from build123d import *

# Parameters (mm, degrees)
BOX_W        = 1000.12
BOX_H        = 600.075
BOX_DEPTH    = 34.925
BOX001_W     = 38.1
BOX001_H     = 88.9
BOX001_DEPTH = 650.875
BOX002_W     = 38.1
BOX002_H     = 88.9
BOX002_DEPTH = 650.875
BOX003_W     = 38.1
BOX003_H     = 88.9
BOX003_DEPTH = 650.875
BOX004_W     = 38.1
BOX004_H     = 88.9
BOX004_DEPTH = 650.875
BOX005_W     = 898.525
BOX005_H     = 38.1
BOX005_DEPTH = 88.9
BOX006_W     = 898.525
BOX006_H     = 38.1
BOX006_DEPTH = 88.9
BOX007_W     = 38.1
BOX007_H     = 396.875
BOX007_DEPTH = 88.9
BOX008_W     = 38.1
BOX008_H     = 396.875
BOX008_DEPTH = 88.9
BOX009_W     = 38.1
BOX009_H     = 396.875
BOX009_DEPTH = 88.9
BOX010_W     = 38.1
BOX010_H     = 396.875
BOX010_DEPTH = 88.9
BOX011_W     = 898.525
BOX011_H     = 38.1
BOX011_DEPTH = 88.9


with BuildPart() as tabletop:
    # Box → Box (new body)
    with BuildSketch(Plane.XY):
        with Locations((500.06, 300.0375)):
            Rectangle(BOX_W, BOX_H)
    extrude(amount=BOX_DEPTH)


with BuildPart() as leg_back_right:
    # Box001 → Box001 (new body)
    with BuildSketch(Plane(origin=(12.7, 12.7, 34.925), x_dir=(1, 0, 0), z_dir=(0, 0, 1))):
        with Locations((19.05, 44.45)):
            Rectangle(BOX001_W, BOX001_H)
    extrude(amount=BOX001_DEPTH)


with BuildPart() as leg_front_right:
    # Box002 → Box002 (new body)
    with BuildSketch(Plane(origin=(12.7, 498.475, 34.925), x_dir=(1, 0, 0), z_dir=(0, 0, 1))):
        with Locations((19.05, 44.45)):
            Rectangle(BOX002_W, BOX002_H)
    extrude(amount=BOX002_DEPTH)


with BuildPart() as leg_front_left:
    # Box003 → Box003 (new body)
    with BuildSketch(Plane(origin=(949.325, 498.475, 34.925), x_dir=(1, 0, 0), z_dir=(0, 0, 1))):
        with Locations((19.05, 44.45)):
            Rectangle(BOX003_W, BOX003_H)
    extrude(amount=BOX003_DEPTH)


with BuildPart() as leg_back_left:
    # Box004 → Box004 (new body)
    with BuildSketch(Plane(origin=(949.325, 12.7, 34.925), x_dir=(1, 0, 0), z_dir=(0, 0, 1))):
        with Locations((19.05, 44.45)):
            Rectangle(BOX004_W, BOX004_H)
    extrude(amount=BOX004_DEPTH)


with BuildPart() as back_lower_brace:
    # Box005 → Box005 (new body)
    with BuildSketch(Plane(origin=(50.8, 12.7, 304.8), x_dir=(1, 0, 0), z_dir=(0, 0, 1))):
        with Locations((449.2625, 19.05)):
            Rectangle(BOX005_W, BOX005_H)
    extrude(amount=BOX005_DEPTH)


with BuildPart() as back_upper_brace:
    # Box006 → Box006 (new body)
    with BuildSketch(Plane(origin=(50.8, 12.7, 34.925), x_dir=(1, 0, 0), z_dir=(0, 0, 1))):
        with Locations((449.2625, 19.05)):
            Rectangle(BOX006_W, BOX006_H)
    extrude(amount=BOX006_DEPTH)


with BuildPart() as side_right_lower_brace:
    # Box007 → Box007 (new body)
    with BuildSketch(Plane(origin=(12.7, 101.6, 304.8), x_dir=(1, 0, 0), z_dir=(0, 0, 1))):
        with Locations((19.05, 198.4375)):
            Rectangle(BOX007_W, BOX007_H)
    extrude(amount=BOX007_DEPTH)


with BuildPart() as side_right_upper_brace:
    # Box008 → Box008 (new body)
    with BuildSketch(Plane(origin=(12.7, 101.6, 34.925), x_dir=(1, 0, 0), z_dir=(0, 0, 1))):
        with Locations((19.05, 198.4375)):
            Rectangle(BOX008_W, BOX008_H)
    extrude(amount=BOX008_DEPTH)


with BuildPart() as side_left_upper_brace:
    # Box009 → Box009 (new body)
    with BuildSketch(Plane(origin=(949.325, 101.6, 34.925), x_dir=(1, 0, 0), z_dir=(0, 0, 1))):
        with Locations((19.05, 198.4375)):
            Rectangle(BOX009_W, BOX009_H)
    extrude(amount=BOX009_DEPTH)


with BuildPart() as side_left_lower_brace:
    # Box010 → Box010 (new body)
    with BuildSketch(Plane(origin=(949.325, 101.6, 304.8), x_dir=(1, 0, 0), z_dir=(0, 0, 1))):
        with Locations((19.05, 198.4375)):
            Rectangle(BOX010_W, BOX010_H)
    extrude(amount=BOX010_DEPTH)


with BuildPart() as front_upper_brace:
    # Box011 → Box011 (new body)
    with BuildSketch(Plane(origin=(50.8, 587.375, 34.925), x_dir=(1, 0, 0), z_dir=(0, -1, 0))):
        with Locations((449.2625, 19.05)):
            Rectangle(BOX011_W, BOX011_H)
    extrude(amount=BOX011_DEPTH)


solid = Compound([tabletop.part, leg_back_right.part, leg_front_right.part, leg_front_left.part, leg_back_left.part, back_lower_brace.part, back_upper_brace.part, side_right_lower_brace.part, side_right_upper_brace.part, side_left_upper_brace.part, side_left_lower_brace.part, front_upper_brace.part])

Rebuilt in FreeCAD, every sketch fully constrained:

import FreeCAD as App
import Part
import Sketcher
from FreeCAD import Vector
Q = App.Units.Quantity


def add_polygon(sketch, points):
    """Adds a closed chain of lines whose ends are joined by coincident constraints."""
    first, n = sketch.GeometryCount, len(points)
    for a, b in zip(points, points[1:] + points[:1]):
        sketch.addGeometry(Part.LineSegment(App.Vector(*a, 0), App.Vector(*b, 0)), False)
    for i in range(n):
        sketch.addConstraint(Sketcher.Constraint("Coincident", first + i, 2, first + (i + 1) % n, 1))

doc = App.newDocument("Part")
params = doc.addObject("Spreadsheet::Sheet", "Params")
for row, (alias, value) in enumerate([
    ("sketch1_height", "23.625 in"),
    ("pad1_length", "1.375 in"),
    ("sketch2_width", "1.5 in"),
    ("sketch2_height", "3.5 in"),
    ("pad2_length", "25.625 in"),
    ("sketch3_width", "1.5 in"),
    ("sketch3_height", "3.5 in"),
    ("pad3_length", "25.625 in"),
    ("sketch4_width", "1.5 in"),
    ("sketch4_height", "3.5 in"),
    ("pad4_length", "25.625 in"),
    ("sketch5_width", "1.5 in"),
    ("sketch5_height", "3.5 in"),
    ("pad5_length", "25.625 in"),
    ("sketch6_height", "1.5 in"),
    ("sketch6_width", "35.375 in"),
    ("pad6_length", "3.5 in"),
    ("sketch7_height", "1.5 in"),
    ("sketch7_width", "35.375 in"),
    ("pad7_length", "3.5 in"),
    ("sketch8_width", "1.5 in"),
    ("sketch8_height", "15.625 in"),
    ("pad8_length", "3.5 in"),
    ("sketch9_width", "1.5 in"),
    ("sketch9_height", "15.625 in"),
    ("pad9_length", "3.5 in"),
    ("sketch10_width", "1.5 in"),
    ("sketch10_height", "15.625 in"),
    ("pad10_length", "3.5 in"),
    ("sketch11_width", "1.5 in"),
    ("sketch11_height", "15.625 in"),
    ("pad11_length", "3.5 in"),
    ("sketch12_height", "1.5 in"),
    ("sketch12_width", "35.375 in"),
    ("pad12_length", "3.5 in"),
], start=1):
    params.set(f"A{row}", alias)
    params.set(f"B{row}", "=" + value)
    params.setAlias(f"B{row}", alias)

body = doc.addObject("PartDesign::Body", "Body")

# Sketch on XY plane
sketch1 = body.newObject("Sketcher::SketchObject", "Sketch")
sketch1.AttachmentSupport = (doc.getObject("XY_Plane"), [""])
sketch1.MapMode = "FlatFace"
add_polygon(sketch1, [(0, 600), (0, 0), (1000, 0), (1000, 600)])  # lines 0-3
sketch1.addConstraint(Sketcher.Constraint("Vertical", 0))
sketch1.addConstraint(Sketcher.Constraint("Horizontal", 1))
sketch1.addConstraint(Sketcher.Constraint("Vertical", 2))
sketch1.addConstraint(Sketcher.Constraint("Horizontal", 3))
sketch1.addConstraint(Sketcher.Constraint("Coincident", 0, 2, -1, 1))
sketch1.addConstraint(Sketcher.Constraint("DistanceY", 0, 2, 0, 1, Q("23.625 in")))
sketch1.addConstraint(Sketcher.Constraint("DistanceX", 1, 1, 1, 2, Q("1000.12 mm")))
sketch1.setExpression("Constraints[9]", "Params.sketch1_height")
pad1 = body.newObject("PartDesign::Pad", "Pad")
pad1.Profile = sketch1
pad1.setExpression("Length", "Params.pad1_length")
body2 = doc.addObject("PartDesign::Body", "Body001")

# Sketch on XY plane
sketch2 = body2.newObject("Sketcher::SketchObject", "Sketch001")
sketch2.AttachmentSupport = (doc.getObject("XY_Plane001"), [""])
sketch2.MapMode = "FlatFace"
sketch2.AttachmentOffset = App.Placement(Vector(0, 0, 1.375 * 25.4), App.Rotation())
add_polygon(sketch2, [(13, 102), (13, 13), (51, 13), (51, 102)])  # lines 0-3
sketch2.addConstraint(Sketcher.Constraint("Vertical", 0))
sketch2.addConstraint(Sketcher.Constraint("Horizontal", 1))
sketch2.addConstraint(Sketcher.Constraint("Vertical", 2))
sketch2.addConstraint(Sketcher.Constraint("Horizontal", 3))
sketch2.addConstraint(Sketcher.Constraint("DistanceX", 1, 1, 1, 2, Q("1.5 in")))
sketch2.addConstraint(Sketcher.Constraint("DistanceY", 0, 2, 0, 1, Q("3.5 in")))
sketch2.addConstraint(Sketcher.Constraint("DistanceX", -1, 1, 1, 2, Q("2 in")))
sketch2.addConstraint(Sketcher.Constraint("DistanceY", -1, 1, 2, 2, Q("4 in")))
sketch2.setExpression("Constraints[8]", "Params.sketch2_width")
sketch2.setExpression("Constraints[9]", "Params.sketch2_height")
pad2 = body2.newObject("PartDesign::Pad", "Pad001")
pad2.Profile = sketch2
pad2.setExpression("Length", "Params.pad2_length")
body3 = doc.addObject("PartDesign::Body", "Body002")

# Sketch on XY plane
sketch3 = body3.newObject("Sketcher::SketchObject", "Sketch002")
sketch3.AttachmentSupport = (doc.getObject("XY_Plane002"), [""])
sketch3.MapMode = "FlatFace"
sketch3.AttachmentOffset = App.Placement(Vector(0, 0, 1.375 * 25.4), App.Rotation())
add_polygon(sketch3, [(13, 587), (13, 498), (51, 498), (51, 587)])  # lines 0-3
sketch3.addConstraint(Sketcher.Constraint("Vertical", 0))
sketch3.addConstraint(Sketcher.Constraint("Horizontal", 1))
sketch3.addConstraint(Sketcher.Constraint("Vertical", 2))
sketch3.addConstraint(Sketcher.Constraint("Horizontal", 3))
sketch3.addConstraint(Sketcher.Constraint("DistanceX", 1, 1, 1, 2, Q("1.5 in")))
sketch3.addConstraint(Sketcher.Constraint("DistanceY", 0, 2, 0, 1, Q("3.5 in")))
sketch3.addConstraint(Sketcher.Constraint("DistanceX", -1, 1, 1, 2, Q("2 in")))
sketch3.addConstraint(Sketcher.Constraint("DistanceY", -1, 1, 0, 2, Q("19.625 in")))
sketch3.setExpression("Constraints[8]", "Params.sketch3_width")
sketch3.setExpression("Constraints[9]", "Params.sketch3_height")
pad3 = body3.newObject("PartDesign::Pad", "Pad002")
pad3.Profile = sketch3
pad3.setExpression("Length", "Params.pad3_length")
body4 = doc.addObject("PartDesign::Body", "Body003")

# Sketch on XY plane
sketch4 = body4.newObject("Sketcher::SketchObject", "Sketch003")
sketch4.AttachmentSupport = (doc.getObject("XY_Plane003"), [""])
sketch4.MapMode = "FlatFace"
sketch4.AttachmentOffset = App.Placement(Vector(0, 0, 1.375 * 25.4), App.Rotation())
add_polygon(sketch4, [(949, 587), (949, 498), (987, 498), (987, 587)])  # lines 0-3
sketch4.addConstraint(Sketcher.Constraint("Vertical", 0))
sketch4.addConstraint(Sketcher.Constraint("Horizontal", 1))
sketch4.addConstraint(Sketcher.Constraint("Vertical", 2))
sketch4.addConstraint(Sketcher.Constraint("Horizontal", 3))
sketch4.addConstraint(Sketcher.Constraint("DistanceX", 1, 1, 1, 2, Q("1.5 in")))
sketch4.addConstraint(Sketcher.Constraint("DistanceY", 0, 2, 0, 1, Q("3.5 in")))
sketch4.addConstraint(Sketcher.Constraint("DistanceX", -1, 1, 0, 2, Q("37.375 in")))
sketch4.addConstraint(Sketcher.Constraint("DistanceY", -1, 1, 0, 2, Q("19.625 in")))
sketch4.setExpression("Constraints[8]", "Params.sketch4_width")
sketch4.setExpression("Constraints[9]", "Params.sketch4_height")
pad4 = body4.newObject("PartDesign::Pad", "Pad003")
pad4.Profile = sketch4
pad4.setExpression("Length", "Params.pad4_length")
body5 = doc.addObject("PartDesign::Body", "Body004")

# Sketch on XY plane
sketch5 = body5.newObject("Sketcher::SketchObject", "Sketch004")
sketch5.AttachmentSupport = (doc.getObject("XY_Plane004"), [""])
sketch5.MapMode = "FlatFace"
sketch5.AttachmentOffset = App.Placement(Vector(0, 0, 1.375 * 25.4), App.Rotation())
add_polygon(sketch5, [(949, 102), (949, 13), (987, 13), (987, 102)])  # lines 0-3
sketch5.addConstraint(Sketcher.Constraint("Vertical", 0))
sketch5.addConstraint(Sketcher.Constraint("Horizontal", 1))
sketch5.addConstraint(Sketcher.Constraint("Vertical", 2))
sketch5.addConstraint(Sketcher.Constraint("Horizontal", 3))
sketch5.addConstraint(Sketcher.Constraint("DistanceX", 1, 1, 1, 2, Q("1.5 in")))
sketch5.addConstraint(Sketcher.Constraint("DistanceY", 0, 2, 0, 1, Q("3.5 in")))
sketch5.addConstraint(Sketcher.Constraint("DistanceY", -1, 1, 2, 2, Q("4 in")))
sketch5.addConstraint(Sketcher.Constraint("DistanceX", -1, 1, 0, 2, Q("37.375 in")))
sketch5.setExpression("Constraints[8]", "Params.sketch5_width")
sketch5.setExpression("Constraints[9]", "Params.sketch5_height")
pad5 = body5.newObject("PartDesign::Pad", "Pad004")
pad5.Profile = sketch5
pad5.setExpression("Length", "Params.pad5_length")
body6 = doc.addObject("PartDesign::Body", "Body005")

# Sketch on XY plane
sketch6 = body6.newObject("Sketcher::SketchObject", "Sketch005")
sketch6.AttachmentSupport = (doc.getObject("XY_Plane005"), [""])
sketch6.MapMode = "FlatFace"
sketch6.AttachmentOffset = App.Placement(Vector(0, 0, 12 * 25.4), App.Rotation())
add_polygon(sketch6, [(51, 51), (51, 13), (949, 13), (949, 51)])  # lines 0-3
sketch6.addConstraint(Sketcher.Constraint("Vertical", 0))
sketch6.addConstraint(Sketcher.Constraint("Horizontal", 1))
sketch6.addConstraint(Sketcher.Constraint("Vertical", 2))
sketch6.addConstraint(Sketcher.Constraint("Horizontal", 3))
sketch6.addConstraint(Sketcher.Constraint("DistanceY", 0, 2, 0, 1, Q("1.5 in")))
sketch6.addConstraint(Sketcher.Constraint("DistanceX", -1, 1, 0, 2, Q("2 in")))
sketch6.addConstraint(Sketcher.Constraint("DistanceY", -1, 1, 2, 2, Q("2 in")))
sketch6.addConstraint(Sketcher.Constraint("DistanceX", 1, 1, 1, 2, Q("35.375 in")))
sketch6.setExpression("Constraints[8]", "Params.sketch6_height")
sketch6.setExpression("Constraints[11]", "Params.sketch6_width")
pad6 = body6.newObject("PartDesign::Pad", "Pad005")
pad6.Profile = sketch6
pad6.setExpression("Length", "Params.pad6_length")
body7 = doc.addObject("PartDesign::Body", "Body006")

# Sketch on XY plane
sketch7 = body7.newObject("Sketcher::SketchObject", "Sketch006")
sketch7.AttachmentSupport = (doc.getObject("XY_Plane006"), [""])
sketch7.MapMode = "FlatFace"
sketch7.AttachmentOffset = App.Placement(Vector(0, 0, 1.375 * 25.4), App.Rotation())
add_polygon(sketch7, [(51, 51), (51, 13), (949, 13), (949, 51)])  # lines 0-3
sketch7.addConstraint(Sketcher.Constraint("Vertical", 0))
sketch7.addConstraint(Sketcher.Constraint("Horizontal", 1))
sketch7.addConstraint(Sketcher.Constraint("Vertical", 2))
sketch7.addConstraint(Sketcher.Constraint("Horizontal", 3))
sketch7.addConstraint(Sketcher.Constraint("DistanceY", 0, 2, 0, 1, Q("1.5 in")))
sketch7.addConstraint(Sketcher.Constraint("DistanceX", -1, 1, 0, 2, Q("2 in")))
sketch7.addConstraint(Sketcher.Constraint("DistanceY", -1, 1, 2, 2, Q("2 in")))
sketch7.addConstraint(Sketcher.Constraint("DistanceX", 1, 1, 1, 2, Q("35.375 in")))
sketch7.setExpression("Constraints[8]", "Params.sketch7_height")
sketch7.setExpression("Constraints[11]", "Params.sketch7_width")
pad7 = body7.newObject("PartDesign::Pad", "Pad006")
pad7.Profile = sketch7
pad7.setExpression("Length", "Params.pad7_length")
body8 = doc.addObject("PartDesign::Body", "Body007")

# Sketch on XY plane
sketch8 = body8.newObject("Sketcher::SketchObject", "Sketch007")
sketch8.AttachmentSupport = (doc.getObject("XY_Plane007"), [""])
sketch8.MapMode = "FlatFace"
sketch8.AttachmentOffset = App.Placement(Vector(0, 0, 12 * 25.4), App.Rotation())
add_polygon(sketch8, [(13, 498), (13, 102), (51, 102), (51, 498)])  # lines 0-3
sketch8.addConstraint(Sketcher.Constraint("Vertical", 0))
sketch8.addConstraint(Sketcher.Constraint("Horizontal", 1))
sketch8.addConstraint(Sketcher.Constraint("Vertical", 2))
sketch8.addConstraint(Sketcher.Constraint("Horizontal", 3))
sketch8.addConstraint(Sketcher.Constraint("DistanceX", 1, 1, 1, 2, Q("1.5 in")))
sketch8.addConstraint(Sketcher.Constraint("DistanceY", -1, 1, 0, 2, Q("4 in")))
sketch8.addConstraint(Sketcher.Constraint("DistanceX", -1, 1, 1, 2, Q("2 in")))
sketch8.addConstraint(Sketcher.Constraint("DistanceY", 0, 2, 0, 1, Q("15.625 in")))
sketch8.setExpression("Constraints[8]", "Params.sketch8_width")
sketch8.setExpression("Constraints[11]", "Params.sketch8_height")
pad8 = body8.newObject("PartDesign::Pad", "Pad007")
pad8.Profile = sketch8
pad8.setExpression("Length", "Params.pad8_length")
body9 = doc.addObject("PartDesign::Body", "Body008")

# Sketch on XY plane
sketch9 = body9.newObject("Sketcher::SketchObject", "Sketch008")
sketch9.AttachmentSupport = (doc.getObject("XY_Plane008"), [""])
sketch9.MapMode = "FlatFace"
sketch9.AttachmentOffset = App.Placement(Vector(0, 0, 1.375 * 25.4), App.Rotation())
add_polygon(sketch9, [(13, 498), (13, 102), (51, 102), (51, 498)])  # lines 0-3
sketch9.addConstraint(Sketcher.Constraint("Vertical", 0))
sketch9.addConstraint(Sketcher.Constraint("Horizontal", 1))
sketch9.addConstraint(Sketcher.Constraint("Vertical", 2))
sketch9.addConstraint(Sketcher.Constraint("Horizontal", 3))
sketch9.addConstraint(Sketcher.Constraint("DistanceX", 1, 1, 1, 2, Q("1.5 in")))
sketch9.addConstraint(Sketcher.Constraint("DistanceY", -1, 1, 0, 2, Q("4 in")))
sketch9.addConstraint(Sketcher.Constraint("DistanceX", -1, 1, 1, 2, Q("2 in")))
sketch9.addConstraint(Sketcher.Constraint("DistanceY", 0, 2, 0, 1, Q("15.625 in")))
sketch9.setExpression("Constraints[8]", "Params.sketch9_width")
sketch9.setExpression("Constraints[11]", "Params.sketch9_height")
pad9 = body9.newObject("PartDesign::Pad", "Pad008")
pad9.Profile = sketch9
pad9.setExpression("Length", "Params.pad9_length")
body10 = doc.addObject("PartDesign::Body", "Body009")

# Sketch on XY plane
sketch10 = body10.newObject("Sketcher::SketchObject", "Sketch009")
sketch10.AttachmentSupport = (doc.getObject("XY_Plane009"), [""])
sketch10.MapMode = "FlatFace"
sketch10.AttachmentOffset = App.Placement(Vector(0, 0, 1.375 * 25.4), App.Rotation())
add_polygon(sketch10, [(949, 498), (949, 102), (987, 102), (987, 498)])  # lines 0-3
sketch10.addConstraint(Sketcher.Constraint("Vertical", 0))
sketch10.addConstraint(Sketcher.Constraint("Horizontal", 1))
sketch10.addConstraint(Sketcher.Constraint("Vertical", 2))
sketch10.addConstraint(Sketcher.Constraint("Horizontal", 3))
sketch10.addConstraint(Sketcher.Constraint("DistanceX", 1, 1, 1, 2, Q("1.5 in")))
sketch10.addConstraint(Sketcher.Constraint("DistanceY", -1, 1, 0, 2, Q("4 in")))
sketch10.addConstraint(Sketcher.Constraint("DistanceY", 0, 2, 0, 1, Q("15.625 in")))
sketch10.addConstraint(Sketcher.Constraint("DistanceX", -1, 1, 0, 2, Q("37.375 in")))
sketch10.setExpression("Constraints[8]", "Params.sketch10_width")
sketch10.setExpression("Constraints[10]", "Params.sketch10_height")
pad10 = body10.newObject("PartDesign::Pad", "Pad009")
pad10.Profile = sketch10
pad10.setExpression("Length", "Params.pad10_length")
body11 = doc.addObject("PartDesign::Body", "Body010")

# Sketch on XY plane
sketch11 = body11.newObject("Sketcher::SketchObject", "Sketch010")
sketch11.AttachmentSupport = (doc.getObject("XY_Plane010"), [""])
sketch11.MapMode = "FlatFace"
sketch11.AttachmentOffset = App.Placement(Vector(0, 0, 12 * 25.4), App.Rotation())
add_polygon(sketch11, [(949, 498), (949, 102), (987, 102), (987, 498)])  # lines 0-3
sketch11.addConstraint(Sketcher.Constraint("Vertical", 0))
sketch11.addConstraint(Sketcher.Constraint("Horizontal", 1))
sketch11.addConstraint(Sketcher.Constraint("Vertical", 2))
sketch11.addConstraint(Sketcher.Constraint("Horizontal", 3))
sketch11.addConstraint(Sketcher.Constraint("DistanceX", 1, 1, 1, 2, Q("1.5 in")))
sketch11.addConstraint(Sketcher.Constraint("DistanceY", -1, 1, 0, 2, Q("4 in")))
sketch11.addConstraint(Sketcher.Constraint("DistanceY", 0, 2, 0, 1, Q("15.625 in")))
sketch11.addConstraint(Sketcher.Constraint("DistanceX", -1, 1, 0, 2, Q("37.375 in")))
sketch11.setExpression("Constraints[8]", "Params.sketch11_width")
sketch11.setExpression("Constraints[10]", "Params.sketch11_height")
pad11 = body11.newObject("PartDesign::Pad", "Pad010")
pad11.Profile = sketch11
pad11.setExpression("Length", "Params.pad11_length")
body12 = doc.addObject("PartDesign::Body", "Body011")

# Sketch on XZ plane
sketch12 = body12.newObject("Sketcher::SketchObject", "Sketch011")
sketch12.AttachmentSupport = (doc.getObject("XZ_Plane011"), [""])
sketch12.MapMode = "FlatFace"
sketch12.AttachmentOffset = App.Placement(Vector(0, 0, -23.125 * 25.4), App.Rotation())
add_polygon(sketch12, [(51, 73), (51, 35), (949, 35), (949, 73)])  # lines 0-3
sketch12.addConstraint(Sketcher.Constraint("Vertical", 0))
sketch12.addConstraint(Sketcher.Constraint("Horizontal", 1))
sketch12.addConstraint(Sketcher.Constraint("Vertical", 2))
sketch12.addConstraint(Sketcher.Constraint("Horizontal", 3))
sketch12.addConstraint(Sketcher.Constraint("DistanceY", 0, 2, 0, 1, Q("1.5 in")))
sketch12.addConstraint(Sketcher.Constraint("DistanceX", -1, 1, 0, 2, Q("2 in")))
sketch12.addConstraint(Sketcher.Constraint("DistanceX", 1, 1, 1, 2, Q("35.375 in")))
sketch12.addConstraint(Sketcher.Constraint("DistanceY", -1, 1, 0, 2, Q("1.375 in")))
sketch12.setExpression("Constraints[8]", "Params.sketch12_height")
sketch12.setExpression("Constraints[10]", "Params.sketch12_width")
pad12 = body12.newObject("PartDesign::Pad", "Pad011")
pad12.Profile = sketch12
pad12.setExpression("Length", "Params.pad12_length")

doc.recompute()
